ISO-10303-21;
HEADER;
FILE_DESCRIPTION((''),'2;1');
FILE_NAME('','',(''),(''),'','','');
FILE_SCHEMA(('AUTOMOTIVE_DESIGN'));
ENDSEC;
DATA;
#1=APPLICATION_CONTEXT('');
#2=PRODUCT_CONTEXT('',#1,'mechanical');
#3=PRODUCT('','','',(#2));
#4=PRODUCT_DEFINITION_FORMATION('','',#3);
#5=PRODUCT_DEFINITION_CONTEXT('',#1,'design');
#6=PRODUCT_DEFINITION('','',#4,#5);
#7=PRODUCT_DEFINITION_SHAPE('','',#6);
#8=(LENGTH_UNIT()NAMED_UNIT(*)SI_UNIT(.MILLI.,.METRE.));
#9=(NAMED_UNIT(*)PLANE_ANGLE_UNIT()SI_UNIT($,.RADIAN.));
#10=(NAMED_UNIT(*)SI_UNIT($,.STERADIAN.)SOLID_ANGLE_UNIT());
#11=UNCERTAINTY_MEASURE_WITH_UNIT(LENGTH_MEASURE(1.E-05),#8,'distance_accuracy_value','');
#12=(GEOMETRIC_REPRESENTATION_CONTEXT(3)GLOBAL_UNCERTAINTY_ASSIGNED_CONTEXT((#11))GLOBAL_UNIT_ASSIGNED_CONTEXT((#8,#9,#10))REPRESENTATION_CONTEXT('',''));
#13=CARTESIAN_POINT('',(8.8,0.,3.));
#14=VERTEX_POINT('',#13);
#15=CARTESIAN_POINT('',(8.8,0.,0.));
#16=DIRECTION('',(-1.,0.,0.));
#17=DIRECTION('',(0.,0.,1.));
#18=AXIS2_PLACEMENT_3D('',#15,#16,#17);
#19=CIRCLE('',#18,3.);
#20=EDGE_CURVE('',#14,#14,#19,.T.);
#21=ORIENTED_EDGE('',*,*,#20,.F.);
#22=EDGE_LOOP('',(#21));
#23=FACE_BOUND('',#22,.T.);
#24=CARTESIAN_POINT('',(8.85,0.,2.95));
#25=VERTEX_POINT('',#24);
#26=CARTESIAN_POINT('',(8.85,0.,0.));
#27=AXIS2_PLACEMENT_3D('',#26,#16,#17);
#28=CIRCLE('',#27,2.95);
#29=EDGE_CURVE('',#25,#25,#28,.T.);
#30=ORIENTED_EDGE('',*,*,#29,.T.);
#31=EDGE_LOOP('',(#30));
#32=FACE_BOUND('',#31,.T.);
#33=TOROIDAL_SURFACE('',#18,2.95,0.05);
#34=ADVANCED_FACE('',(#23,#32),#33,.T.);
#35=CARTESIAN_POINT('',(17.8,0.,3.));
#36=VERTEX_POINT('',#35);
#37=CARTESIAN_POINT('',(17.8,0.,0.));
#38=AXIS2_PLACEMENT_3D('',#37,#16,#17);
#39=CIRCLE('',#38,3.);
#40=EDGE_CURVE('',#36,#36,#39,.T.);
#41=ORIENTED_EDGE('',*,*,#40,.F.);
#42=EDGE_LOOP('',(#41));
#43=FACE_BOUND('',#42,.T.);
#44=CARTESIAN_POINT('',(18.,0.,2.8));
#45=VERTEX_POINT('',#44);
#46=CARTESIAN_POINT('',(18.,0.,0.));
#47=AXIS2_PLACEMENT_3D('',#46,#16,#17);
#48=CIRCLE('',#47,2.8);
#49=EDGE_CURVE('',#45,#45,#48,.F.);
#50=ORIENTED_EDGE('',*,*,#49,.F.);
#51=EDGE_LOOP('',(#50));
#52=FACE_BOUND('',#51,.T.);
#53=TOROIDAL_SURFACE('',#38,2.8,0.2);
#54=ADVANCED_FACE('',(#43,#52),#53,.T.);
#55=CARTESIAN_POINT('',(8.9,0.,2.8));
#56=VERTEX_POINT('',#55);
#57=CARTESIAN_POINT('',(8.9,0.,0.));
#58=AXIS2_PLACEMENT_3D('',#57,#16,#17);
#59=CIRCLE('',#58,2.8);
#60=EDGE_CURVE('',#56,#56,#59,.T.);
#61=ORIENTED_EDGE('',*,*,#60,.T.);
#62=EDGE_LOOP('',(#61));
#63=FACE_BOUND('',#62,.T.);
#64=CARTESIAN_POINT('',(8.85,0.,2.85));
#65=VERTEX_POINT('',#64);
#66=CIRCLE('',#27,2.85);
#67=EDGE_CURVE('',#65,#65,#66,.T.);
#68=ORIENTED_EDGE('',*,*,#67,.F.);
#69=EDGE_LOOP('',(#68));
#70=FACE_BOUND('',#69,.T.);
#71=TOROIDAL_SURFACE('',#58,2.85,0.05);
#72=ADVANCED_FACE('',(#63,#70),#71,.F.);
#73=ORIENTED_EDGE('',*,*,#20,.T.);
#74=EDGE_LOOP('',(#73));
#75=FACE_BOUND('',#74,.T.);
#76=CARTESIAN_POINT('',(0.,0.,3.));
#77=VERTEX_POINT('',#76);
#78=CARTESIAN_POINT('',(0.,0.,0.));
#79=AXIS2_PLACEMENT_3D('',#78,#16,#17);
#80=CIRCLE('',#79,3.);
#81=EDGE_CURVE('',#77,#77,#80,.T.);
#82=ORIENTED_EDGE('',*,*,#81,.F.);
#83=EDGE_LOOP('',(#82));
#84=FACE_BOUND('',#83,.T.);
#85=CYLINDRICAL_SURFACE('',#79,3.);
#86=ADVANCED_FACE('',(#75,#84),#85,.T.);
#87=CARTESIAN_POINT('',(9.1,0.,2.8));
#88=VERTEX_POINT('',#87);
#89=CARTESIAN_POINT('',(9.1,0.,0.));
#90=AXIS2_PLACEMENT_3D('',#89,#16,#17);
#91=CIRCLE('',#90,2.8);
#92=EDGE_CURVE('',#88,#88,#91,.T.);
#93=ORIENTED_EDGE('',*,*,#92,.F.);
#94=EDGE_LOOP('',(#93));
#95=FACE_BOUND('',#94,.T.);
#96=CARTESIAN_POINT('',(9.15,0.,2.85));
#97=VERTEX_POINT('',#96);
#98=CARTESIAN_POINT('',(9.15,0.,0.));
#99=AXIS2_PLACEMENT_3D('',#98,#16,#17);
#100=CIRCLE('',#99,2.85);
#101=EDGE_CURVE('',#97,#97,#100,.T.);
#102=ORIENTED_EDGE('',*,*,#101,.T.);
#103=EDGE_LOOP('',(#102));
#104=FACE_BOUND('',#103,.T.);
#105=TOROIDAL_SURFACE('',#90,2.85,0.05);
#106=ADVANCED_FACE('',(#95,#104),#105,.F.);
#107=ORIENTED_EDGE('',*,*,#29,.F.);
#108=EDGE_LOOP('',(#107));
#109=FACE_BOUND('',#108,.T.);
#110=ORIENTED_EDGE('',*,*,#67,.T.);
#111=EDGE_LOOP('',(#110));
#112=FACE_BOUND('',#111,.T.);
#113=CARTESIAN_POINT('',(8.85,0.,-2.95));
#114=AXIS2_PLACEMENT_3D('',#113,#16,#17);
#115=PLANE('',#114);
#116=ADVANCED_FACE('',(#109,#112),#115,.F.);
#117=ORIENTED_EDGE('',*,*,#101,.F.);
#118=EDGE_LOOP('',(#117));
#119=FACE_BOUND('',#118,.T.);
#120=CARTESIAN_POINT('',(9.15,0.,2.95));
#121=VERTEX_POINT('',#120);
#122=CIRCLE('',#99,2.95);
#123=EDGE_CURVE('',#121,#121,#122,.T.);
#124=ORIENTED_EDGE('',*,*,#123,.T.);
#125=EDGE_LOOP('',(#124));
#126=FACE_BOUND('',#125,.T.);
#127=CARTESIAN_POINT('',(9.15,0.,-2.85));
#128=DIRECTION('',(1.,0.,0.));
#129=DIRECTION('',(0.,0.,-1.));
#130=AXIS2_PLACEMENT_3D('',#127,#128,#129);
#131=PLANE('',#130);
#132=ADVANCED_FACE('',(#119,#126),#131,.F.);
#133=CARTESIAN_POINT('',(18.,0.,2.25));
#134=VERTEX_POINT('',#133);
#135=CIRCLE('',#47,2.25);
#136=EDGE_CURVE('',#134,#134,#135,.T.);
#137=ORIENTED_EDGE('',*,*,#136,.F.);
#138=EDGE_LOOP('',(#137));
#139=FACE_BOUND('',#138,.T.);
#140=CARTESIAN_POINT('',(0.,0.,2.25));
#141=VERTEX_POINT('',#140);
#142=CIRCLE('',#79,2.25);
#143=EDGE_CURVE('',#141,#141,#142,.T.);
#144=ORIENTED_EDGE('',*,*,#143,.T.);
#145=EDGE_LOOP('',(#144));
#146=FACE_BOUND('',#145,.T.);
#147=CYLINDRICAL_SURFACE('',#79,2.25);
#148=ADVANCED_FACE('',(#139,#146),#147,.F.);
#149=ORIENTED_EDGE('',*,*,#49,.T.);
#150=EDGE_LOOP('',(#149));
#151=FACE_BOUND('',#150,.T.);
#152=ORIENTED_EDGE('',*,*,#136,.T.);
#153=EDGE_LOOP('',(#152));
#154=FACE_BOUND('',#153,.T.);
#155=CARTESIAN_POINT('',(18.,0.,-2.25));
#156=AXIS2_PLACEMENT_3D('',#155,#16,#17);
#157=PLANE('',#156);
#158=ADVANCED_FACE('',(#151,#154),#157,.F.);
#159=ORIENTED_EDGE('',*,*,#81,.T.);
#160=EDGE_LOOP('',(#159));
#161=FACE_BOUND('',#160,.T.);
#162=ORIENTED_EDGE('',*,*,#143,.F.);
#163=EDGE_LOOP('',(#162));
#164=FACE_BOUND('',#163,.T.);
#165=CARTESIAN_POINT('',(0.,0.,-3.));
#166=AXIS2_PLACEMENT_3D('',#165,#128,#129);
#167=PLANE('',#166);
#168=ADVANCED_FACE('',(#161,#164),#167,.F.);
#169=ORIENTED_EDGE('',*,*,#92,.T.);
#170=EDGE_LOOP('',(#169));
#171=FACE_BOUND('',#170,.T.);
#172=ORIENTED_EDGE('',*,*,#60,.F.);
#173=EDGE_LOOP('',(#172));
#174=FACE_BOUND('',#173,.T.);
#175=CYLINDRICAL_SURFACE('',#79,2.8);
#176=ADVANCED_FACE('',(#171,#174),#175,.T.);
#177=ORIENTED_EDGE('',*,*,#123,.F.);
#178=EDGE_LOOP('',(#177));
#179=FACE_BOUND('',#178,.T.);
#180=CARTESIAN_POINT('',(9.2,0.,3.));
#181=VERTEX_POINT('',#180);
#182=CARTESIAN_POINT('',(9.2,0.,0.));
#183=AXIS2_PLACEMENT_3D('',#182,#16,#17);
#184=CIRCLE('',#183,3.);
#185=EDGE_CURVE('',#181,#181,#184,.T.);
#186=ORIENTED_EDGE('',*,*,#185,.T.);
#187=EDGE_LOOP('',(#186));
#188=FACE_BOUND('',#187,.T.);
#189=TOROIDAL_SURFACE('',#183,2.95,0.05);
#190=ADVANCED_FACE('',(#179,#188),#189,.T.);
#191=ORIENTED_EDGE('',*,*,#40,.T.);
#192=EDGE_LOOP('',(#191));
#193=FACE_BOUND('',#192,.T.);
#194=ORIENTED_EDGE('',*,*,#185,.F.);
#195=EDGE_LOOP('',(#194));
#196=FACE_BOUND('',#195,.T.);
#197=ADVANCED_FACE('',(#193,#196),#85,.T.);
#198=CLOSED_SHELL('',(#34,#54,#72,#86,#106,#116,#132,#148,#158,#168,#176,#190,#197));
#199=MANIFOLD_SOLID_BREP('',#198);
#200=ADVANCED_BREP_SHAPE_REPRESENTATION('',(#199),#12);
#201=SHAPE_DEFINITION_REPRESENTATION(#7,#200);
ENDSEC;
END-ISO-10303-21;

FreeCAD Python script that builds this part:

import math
import FreeCAD as App
import Part
import Sketcher

V = App.Vector
Q = App.Units.Quantity


def edges_at(feature, points):
    """Names of the edges that pass closest to the given points."""
    edges = feature.Shape.Edges
    near = lambda p: min(range(len(edges)), key=lambda i: edges[i].distToShape(Part.Vertex(*p))[0])
    return sorted({f"Edge{near(p) + 1}" for p in points})

doc = App.newDocument("Part")
body = doc.addObject("PartDesign::Body", "Body")

sketch1 = body.newObject("Sketcher::SketchObject", "Sketch")
sketch1.AttachmentSupport = (doc.getObject("XZ_Plane"), [""])
sketch1.MapMode = "FlatFace"
sketch1.addGeometry(Part.LineSegment(V(18, -2.25, 0), V(18, -3, 0)), False)
sketch1.addGeometry(Part.LineSegment(V(18, -3, 0), V(9.2, -3, 0)), False)
sketch1.addGeometry(Part.ArcOfCircle(Part.Circle(V(9.2, -2.95, 0), V(0, 0, 1), 0.05), math.radians(180), math.radians(270)), False)
sketch1.addGeometry(Part.LineSegment(V(9.15, -2.95, 0), V(9.15, -2.85, 0)), False)
sketch1.addGeometry(Part.ArcOfCircle(Part.Circle(V(9.1, -2.85, 0), V(0, 0, 1), 0.05), math.radians(0), math.radians(90)), False)
sketch1.addGeometry(Part.LineSegment(V(9.1, -2.8, 0), V(8.9, -2.8, 0)), False)
sketch1.addGeometry(Part.ArcOfCircle(Part.Circle(V(8.9, -2.85, 0), V(0, 0, 1), 0.05), math.radians(90), math.radians(180)), False)
sketch1.addGeometry(Part.LineSegment(V(8.85, -2.85, 0), V(8.85, -2.95, 0)), False)
sketch1.addGeometry(Part.ArcOfCircle(Part.Circle(V(8.8, -2.95, 0), V(0, 0, 1), 0.05), math.radians(-90), math.radians(0)), False)
sketch1.addGeometry(Part.LineSegment(V(8.8, -3, 0), V(0, -3, 0)), False)
sketch1.addGeometry(Part.LineSegment(V(0, -3, 0), V(0, -2.25, 0)), False)
sketch1.addGeometry(Part.LineSegment(V(0, -2.25, 0), V(18, -2.25, 0)), False)
sketch1.addConstraint(Sketcher.Constraint("Coincident", 0, 2, 1, 1))
sketch1.addConstraint(Sketcher.Constraint("Tangent", 1, 2, 2, 2))
sketch1.addConstraint(Sketcher.Constraint("Tangent", 2, 1, 3, 1))
sketch1.addConstraint(Sketcher.Constraint("Tangent", 3, 2, 4, 1))
sketch1.addConstraint(Sketcher.Constraint("Tangent", 4, 2, 5, 1))
sketch1.addConstraint(Sketcher.Constraint("Tangent", 5, 2, 6, 1))
sketch1.addConstraint(Sketcher.Constraint("Tangent", 6, 2, 7, 1))
sketch1.addConstraint(Sketcher.Constraint("Tangent", 7, 2, 8, 2))
sketch1.addConstraint(Sketcher.Constraint("Tangent", 8, 1, 9, 1))
sketch1.addConstraint(Sketcher.Constraint("Coincident", 9, 2, 10, 1))
sketch1.addConstraint(Sketcher.Constraint("Coincident", 10, 2, 11, 1))
sketch1.addConstraint(Sketcher.Constraint("Coincident", 11, 2, 0, 1))
sketch1.addConstraint(Sketcher.Constraint("Vertical", 0))
sketch1.addConstraint(Sketcher.Constraint("Horizontal", 1))
sketch1.addConstraint(Sketcher.Constraint("Vertical", 3))
sketch1.addConstraint(Sketcher.Constraint("Horizontal", 5))
sketch1.addConstraint(Sketcher.Constraint("Vertical", 7))
sketch1.addConstraint(Sketcher.Constraint("Horizontal", 9))
sketch1.addConstraint(Sketcher.Constraint("Vertical", 10))
sketch1.addConstraint(Sketcher.Constraint("Horizontal", 11))
sketch1.addConstraint(Sketcher.Constraint("Equal", 2, 4))
sketch1.addConstraint(Sketcher.Constraint("Equal", 4, 6))
sketch1.addConstraint(Sketcher.Constraint("Equal", 6, 8))
sketch1.addConstraint(Sketcher.Constraint("PointOnObject", 9, 2, -2))
sketch1.addConstraint(Sketcher.Constraint("Horizontal", 2, 3, 8, 3))
sketch1.addConstraint(Sketcher.Constraint("Equal", 1, 9))
sketch1.addConstraint(Sketcher.Constraint("DistanceX", 11, 1, 11, 2, Q("18 mm")))
sketch1.addConstraint(Sketcher.Constraint("Radius", 2, Q("0.05 mm")))
sketch1.addConstraint(Sketcher.Constraint("DistanceX", 1, 2, 1, 1, Q("8.8 mm")))
sketch1.addConstraint(Sketcher.Constraint("DistanceY", 3, 1, 3, 2, Q("0.1 mm")))
sketch1.addConstraint(Sketcher.Constraint("DistanceY", 0, 2, -1, 1, Q("3 mm")))
sketch1.addConstraint(Sketcher.Constraint("DistanceY", 0, 2, 0, 1, Q("0.75 mm")))
revolution = body.newObject("PartDesign::Revolution", "Revolution")
revolution.Profile = sketch1
revolution.ReferenceAxis = (sketch1, ["H_Axis"])
revolution.Angle = 360
doc.recompute()

fillet = body.newObject("PartDesign::Fillet", "Fillet")
fillet.Base = (revolution, edges_at(revolution, [(18, 0, 3)]))
fillet.Radius = 0.2

doc.recompute()
